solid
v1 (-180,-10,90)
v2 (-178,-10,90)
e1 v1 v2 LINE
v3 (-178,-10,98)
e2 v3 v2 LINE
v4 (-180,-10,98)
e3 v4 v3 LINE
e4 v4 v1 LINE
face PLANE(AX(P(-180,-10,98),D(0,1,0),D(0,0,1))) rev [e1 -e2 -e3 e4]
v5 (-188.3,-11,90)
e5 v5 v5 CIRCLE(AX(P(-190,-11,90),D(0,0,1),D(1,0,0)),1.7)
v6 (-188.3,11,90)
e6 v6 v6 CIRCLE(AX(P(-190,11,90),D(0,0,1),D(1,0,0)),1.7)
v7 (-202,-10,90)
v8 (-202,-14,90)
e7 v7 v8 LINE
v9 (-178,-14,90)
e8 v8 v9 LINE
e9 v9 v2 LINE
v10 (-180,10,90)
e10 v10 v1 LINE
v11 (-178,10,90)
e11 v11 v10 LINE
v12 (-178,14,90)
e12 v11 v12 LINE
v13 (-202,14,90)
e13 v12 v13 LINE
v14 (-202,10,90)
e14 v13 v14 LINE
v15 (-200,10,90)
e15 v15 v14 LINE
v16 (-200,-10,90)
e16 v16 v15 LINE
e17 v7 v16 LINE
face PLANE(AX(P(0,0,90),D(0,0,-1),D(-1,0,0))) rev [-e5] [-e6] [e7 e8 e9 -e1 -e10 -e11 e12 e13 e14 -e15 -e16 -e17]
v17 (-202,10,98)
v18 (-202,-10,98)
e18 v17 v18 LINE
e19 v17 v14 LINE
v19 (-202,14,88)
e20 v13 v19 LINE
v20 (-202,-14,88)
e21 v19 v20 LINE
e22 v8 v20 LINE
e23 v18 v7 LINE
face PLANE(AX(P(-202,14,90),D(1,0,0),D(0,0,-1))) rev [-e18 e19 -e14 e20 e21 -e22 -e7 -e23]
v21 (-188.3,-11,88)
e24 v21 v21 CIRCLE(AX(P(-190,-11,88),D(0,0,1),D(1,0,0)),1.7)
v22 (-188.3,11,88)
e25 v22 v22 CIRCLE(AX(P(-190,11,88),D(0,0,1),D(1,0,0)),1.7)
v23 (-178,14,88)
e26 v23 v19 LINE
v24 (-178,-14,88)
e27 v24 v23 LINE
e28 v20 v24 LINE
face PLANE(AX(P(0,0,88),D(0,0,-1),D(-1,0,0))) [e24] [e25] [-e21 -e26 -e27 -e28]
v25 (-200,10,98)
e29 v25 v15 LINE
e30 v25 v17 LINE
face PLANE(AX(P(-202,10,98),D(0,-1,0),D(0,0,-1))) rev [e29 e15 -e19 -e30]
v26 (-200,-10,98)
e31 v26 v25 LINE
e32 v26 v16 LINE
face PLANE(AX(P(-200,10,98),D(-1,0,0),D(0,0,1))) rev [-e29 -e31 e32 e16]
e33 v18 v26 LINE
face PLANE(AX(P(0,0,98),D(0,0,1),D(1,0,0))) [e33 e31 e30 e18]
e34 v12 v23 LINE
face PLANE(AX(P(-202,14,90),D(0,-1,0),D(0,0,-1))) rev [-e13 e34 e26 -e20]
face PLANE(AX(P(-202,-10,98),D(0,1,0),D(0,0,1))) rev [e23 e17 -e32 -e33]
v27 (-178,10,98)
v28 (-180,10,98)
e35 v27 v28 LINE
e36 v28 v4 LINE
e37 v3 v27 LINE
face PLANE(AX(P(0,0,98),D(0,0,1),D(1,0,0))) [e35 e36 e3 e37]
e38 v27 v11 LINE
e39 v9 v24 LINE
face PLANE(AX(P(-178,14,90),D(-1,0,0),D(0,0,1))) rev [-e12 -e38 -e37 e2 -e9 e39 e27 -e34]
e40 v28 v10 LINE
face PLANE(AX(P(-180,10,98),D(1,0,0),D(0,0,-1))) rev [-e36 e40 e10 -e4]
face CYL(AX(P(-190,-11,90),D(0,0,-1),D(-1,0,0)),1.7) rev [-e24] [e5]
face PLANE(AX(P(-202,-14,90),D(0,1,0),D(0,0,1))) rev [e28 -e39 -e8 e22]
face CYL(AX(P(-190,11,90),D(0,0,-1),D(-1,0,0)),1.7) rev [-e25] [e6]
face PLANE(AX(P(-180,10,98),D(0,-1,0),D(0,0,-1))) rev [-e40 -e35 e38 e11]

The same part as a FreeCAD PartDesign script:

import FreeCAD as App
import Part
import Sketcher
from FreeCAD import Vector
Q = App.Units.Quantity


def add_polygon(sketch, points):
    """Adds a closed chain of lines whose ends are joined by coincident constraints."""
    first, n = sketch.GeometryCount, len(points)
    for a, b in zip(points, points[1:] + points[:1]):
        sketch.addGeometry(Part.LineSegment(App.Vector(*a, 0), App.Vector(*b, 0)), False)
    for i in range(n):
        sketch.addConstraint(Sketcher.Constraint("Coincident", first + i, 2, first + (i + 1) % n, 1))

doc = App.newDocument("Part")
body = doc.addObject("PartDesign::Body", "Body")

# Sketch on XY plane
sketch1 = body.newObject("Sketcher::SketchObject", "Sketch")
sketch1.AttachmentSupport = (doc.getObject("XY_Plane"), [""])
sketch1.MapMode = "FlatFace"
sketch1.AttachmentOffset = App.Placement(Vector(0, 0, 88), App.Rotation())
add_polygon(sketch1, [(-202, 14), (-202, -14), (-178, -14), (-178, 14)])  # lines 0-3
sketch1.addGeometry(Part.Circle(Vector(-190, -11, 0), Vector(0, 0, 1), 1.7), False)  # 4
sketch1.addGeometry(Part.Circle(Vector(-190, 11, 0), Vector(0, 0, 1), 1.7), False)  # 5
sketch1.addConstraint(Sketcher.Constraint("Vertical", 0))
sketch1.addConstraint(Sketcher.Constraint("Horizontal", 1))
sketch1.addConstraint(Sketcher.Constraint("Vertical", 2))
sketch1.addConstraint(Sketcher.Constraint("Horizontal", 3))
sketch1.addConstraint(Sketcher.Constraint("Equal", 4, 5))
sketch1.addConstraint(Sketcher.Constraint("Symmetric", 4, 3, 5, 3, -1))
sketch1.addConstraint(Sketcher.Constraint("Diameter", 4, Q("3.4 mm")))
sketch1.addConstraint(Sketcher.Constraint("DistanceX", 1, 1, 1, 2, Q("24 mm")))
sketch1.addConstraint(Sketcher.Constraint("DistanceY", 0, 2, 0, 1, Q("28 mm")))
sketch1.addConstraint(Sketcher.Constraint("DistanceX", 4, 3, -1, 1, Q("190 mm")))
sketch1.addConstraint(Sketcher.Constraint("DistanceY", 4, 3, -1, 1, Q("11 mm")))
sketch1.addConstraint(Sketcher.Constraint("DistanceX", 0, 2, -1, 1, Q("202 mm")))
sketch1.addConstraint(Sketcher.Constraint("DistanceY", 0, 2, -1, 1, Q("14 mm")))
pad1 = body.newObject("PartDesign::Pad", "Pad")
pad1.Profile = sketch1
pad1.Length = 2

# Sketch on XY plane
sketch2 = body.newObject("Sketcher::SketchObject", "Sketch001")
sketch2.AttachmentSupport = (doc.getObject("XY_Plane"), [""])
sketch2.MapMode = "FlatFace"
sketch2.AttachmentOffset = App.Placement(Vector(0, 0, 90), App.Rotation())
add_polygon(sketch2, [(-180, 10), (-180, -10), (-178, -10), (-178, 10)])  # lines 0-3
add_polygon(sketch2, [(-202, 10), (-202, -10), (-200, -10), (-200, 10)])  # lines 4-7
sketch2.addConstraint(Sketcher.Constraint("Vertical", 0))
sketch2.addConstraint(Sketcher.Constraint("Horizontal", 1))
sketch2.addConstraint(Sketcher.Constraint("Vertical", 2))
sketch2.addConstraint(Sketcher.Constraint("Horizontal", 3))
sketch2.addConstraint(Sketcher.Constraint("Vertical", 4))
sketch2.addConstraint(Sketcher.Constraint("Horizontal", 5))
sketch2.addConstraint(Sketcher.Constraint("Vertical", 6))
sketch2.addConstraint(Sketcher.Constraint("Horizontal", 7))
sketch2.addConstraint(Sketcher.Constraint("Horizontal", 1, 2, 4, 2))
sketch2.addConstraint(Sketcher.Constraint("Horizontal", 3, 2, 6, 2))
sketch2.addConstraint(Sketcher.Constraint("Equal", 3, 5))
sketch2.addConstraint(Sketcher.Constraint("DistanceX", 1, 1, 1, 2, Q("2 mm")))
sketch2.addConstraint(Sketcher.Constraint("DistanceY", 0, 2, 0, 1, Q("20 mm")))
sketch2.addConstraint(Sketcher.Constraint("DistanceX", 0, 2, -1, 1, Q("180 mm")))
sketch2.addConstraint(Sketcher.Constraint("DistanceY", 0, 2, -1, 1, Q("10 mm")))
sketch2.addConstraint(Sketcher.Constraint("DistanceX", 4, 2, -1, 1, Q("202 mm")))
pad2 = body.newObject("PartDesign::Pad", "Pad001")
pad2.Profile = sketch2
pad2.Length = 8

doc.recompute()
